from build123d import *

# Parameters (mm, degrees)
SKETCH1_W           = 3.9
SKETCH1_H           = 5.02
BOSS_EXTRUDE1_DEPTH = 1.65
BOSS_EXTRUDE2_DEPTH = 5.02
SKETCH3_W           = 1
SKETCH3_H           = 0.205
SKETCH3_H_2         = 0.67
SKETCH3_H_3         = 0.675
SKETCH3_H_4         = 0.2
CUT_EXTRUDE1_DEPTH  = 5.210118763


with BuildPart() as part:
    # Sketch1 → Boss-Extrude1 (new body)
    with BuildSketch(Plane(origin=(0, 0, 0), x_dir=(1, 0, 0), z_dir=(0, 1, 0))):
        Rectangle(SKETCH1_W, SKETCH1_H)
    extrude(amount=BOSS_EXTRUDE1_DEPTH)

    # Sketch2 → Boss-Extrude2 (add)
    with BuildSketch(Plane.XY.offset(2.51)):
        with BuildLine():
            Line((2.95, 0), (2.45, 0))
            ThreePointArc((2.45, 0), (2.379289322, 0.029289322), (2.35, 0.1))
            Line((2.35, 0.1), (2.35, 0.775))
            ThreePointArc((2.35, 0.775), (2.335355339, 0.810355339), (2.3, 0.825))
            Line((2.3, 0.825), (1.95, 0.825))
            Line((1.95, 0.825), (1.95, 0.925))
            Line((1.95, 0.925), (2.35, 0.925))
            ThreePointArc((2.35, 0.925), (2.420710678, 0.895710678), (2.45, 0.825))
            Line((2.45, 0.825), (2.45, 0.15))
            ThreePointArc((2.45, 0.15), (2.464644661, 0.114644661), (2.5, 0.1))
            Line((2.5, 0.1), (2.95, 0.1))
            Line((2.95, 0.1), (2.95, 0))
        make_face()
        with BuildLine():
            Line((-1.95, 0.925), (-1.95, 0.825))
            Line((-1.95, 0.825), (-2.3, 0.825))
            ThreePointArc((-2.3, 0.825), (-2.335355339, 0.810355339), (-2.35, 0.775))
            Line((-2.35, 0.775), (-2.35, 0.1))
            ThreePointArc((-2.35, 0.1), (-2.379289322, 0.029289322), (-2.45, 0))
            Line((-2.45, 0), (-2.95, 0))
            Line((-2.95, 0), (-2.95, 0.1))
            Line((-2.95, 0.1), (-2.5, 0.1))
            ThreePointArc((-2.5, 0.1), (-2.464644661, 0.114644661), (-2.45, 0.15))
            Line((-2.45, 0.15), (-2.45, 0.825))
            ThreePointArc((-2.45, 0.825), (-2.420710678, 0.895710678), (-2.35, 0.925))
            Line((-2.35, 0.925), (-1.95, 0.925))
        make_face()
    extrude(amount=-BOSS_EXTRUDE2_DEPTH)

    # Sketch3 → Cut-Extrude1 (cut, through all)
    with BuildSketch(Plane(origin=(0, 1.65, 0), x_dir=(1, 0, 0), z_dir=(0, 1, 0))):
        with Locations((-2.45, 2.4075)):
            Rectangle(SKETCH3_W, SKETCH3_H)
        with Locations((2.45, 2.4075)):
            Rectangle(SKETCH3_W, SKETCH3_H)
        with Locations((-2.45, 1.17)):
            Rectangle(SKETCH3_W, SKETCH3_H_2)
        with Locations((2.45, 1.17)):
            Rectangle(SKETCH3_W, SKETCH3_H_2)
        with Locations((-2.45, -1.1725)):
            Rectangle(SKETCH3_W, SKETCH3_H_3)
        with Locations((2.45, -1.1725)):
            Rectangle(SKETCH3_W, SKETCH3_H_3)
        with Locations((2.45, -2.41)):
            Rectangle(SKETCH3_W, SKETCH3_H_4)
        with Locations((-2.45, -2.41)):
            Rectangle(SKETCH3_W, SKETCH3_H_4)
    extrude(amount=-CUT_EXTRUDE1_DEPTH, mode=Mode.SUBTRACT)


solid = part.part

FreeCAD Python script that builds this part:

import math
import FreeCAD as App
import Part
import Sketcher
from FreeCAD import Vector

doc = App.newDocument("Part")
body = doc.addObject("PartDesign::Body", "Body")

sketch1 = body.newObject("Sketcher::SketchObject", "Sketch")
sketch1.AttachmentSupport = (doc.getObject("XZ_Plane"), [""])
sketch1.MapMode = "FlatFace"
sketch1.addGeometry(Part.LineSegment(Vector(-1.9, -2.5, 0), Vector(-1.9, 2.5, 0)), False)
sketch1.addGeometry(Part.LineSegment(Vector(-1.9, 2.5, 0), Vector(1.9, 2.5, 0)), False)
sketch1.addGeometry(Part.LineSegment(Vector(1.9, 2.5, 0), Vector(1.9, -2.5, 0)), False)
sketch1.addGeometry(Part.LineSegment(Vector(1.9, -2.5, 0), Vector(-1.9, -2.5, 0)), False)
sketch1.addConstraint(Sketcher.Constraint("Coincident", 0, 2, 1, 1))
sketch1.addConstraint(Sketcher.Constraint("Coincident", 1, 2, 2, 1))
sketch1.addConstraint(Sketcher.Constraint("Coincident", 2, 2, 3, 1))
sketch1.addConstraint(Sketcher.Constraint("Coincident", 3, 2, 0, 1))
sketch1.addConstraint(Sketcher.Constraint("Vertical", 0))
sketch1.addConstraint(Sketcher.Constraint("Horizontal", 1))
sketch1.addConstraint(Sketcher.Constraint("Vertical", 2))
sketch1.addConstraint(Sketcher.Constraint("Horizontal", 3))
sketch1.addConstraint(Sketcher.Constraint("Symmetric", 0, 2, 2, 2, -1, 1))
sketch1.addConstraint(Sketcher.Constraint("DistanceX", 1, 1, 1, 2, 3.9))
sketch1.addConstraint(Sketcher.Constraint("DistanceY", 0, 1, 0, 2, 5.02))
pad1 = body.newObject("PartDesign::Pad", "Pad")
pad1.Profile = sketch1
pad1.Length = 1.65
pad1.Reversed = True

sketch2 = body.newObject("Sketcher::SketchObject", "Sketch001")
sketch2.AttachmentSupport = (doc.getObject("XY_Plane"), [""])
sketch2.MapMode = "FlatFace"
sketch2.AttachmentOffset = App.Placement(Vector(0, 0, 2.51), App.Rotation())
sketch2.addGeometry(Part.LineSegment(Vector(2.45, 0, 0), Vector(2.95, 0, 0)), False)
sketch2.addGeometry(Part.LineSegment(Vector(2.95, 0, 0), Vector(2.95, 0.1, 0)), False)
sketch2.addGeometry(Part.LineSegment(Vector(2.95, 0.1, 0), Vector(2.5, 0.1, 0)), False)
sketch2.addGeometry(Part.ArcOfCircle(Part.Circle(Vector(2.5, 0.15, 0), Vector(0, 0, 1), 0.05), math.radians(180), math.radians(270)), False)
sketch2.addGeometry(Part.LineSegment(Vector(2.45, 0.15, 0), Vector(2.45, 0.82, 0)), False)
sketch2.addGeometry(Part.ArcOfCircle(Part.Circle(Vector(2.35, 0.82, 0), Vector(0, 0, 1), 0.1), math.radians(0), math.radians(90)), False)
sketch2.addGeometry(Part.LineSegment(Vector(2.35, 0.93, 0), Vector(1.95, 0.93, 0)), False)
sketch2.addGeometry(Part.LineSegment(Vector(1.95, 0.93, 0), Vector(1.95, 0.82, 0)), False)
sketch2.addGeometry(Part.LineSegment(Vector(1.95, 0.82, 0), Vector(2.3, 0.82, 0)), False)
sketch2.addGeometry(Part.ArcOfCircle(Part.Circle(Vector(2.3, 0.78, 0), Vector(0, 0, 1), 0.05), math.radians(0), math.radians(90)), False)
sketch2.addGeometry(Part.LineSegment(Vector(2.35, 0.78, 0), Vector(2.35, 0.1, 0)), False)
sketch2.addGeometry(Part.ArcOfCircle(Part.Circle(Vector(2.45, 0.1, 0), Vector(0, 0, 1), 0.1), math.radians(180), math.radians(270)), False)
sketch2.addGeometry(Part.LineSegment(Vector(-1.95, 0.82, 0), Vector(-1.95, 0.93, 0)), False)
sketch2.addGeometry(Part.LineSegment(Vector(-1.95, 0.93, 0), Vector(-2.35, 0.93, 0)), False)
sketch2.addGeometry(Part.ArcOfCircle(Part.Circle(Vector(-2.35, 0.82, 0), Vector(0, 0, 1), 0.1), math.radians(90), math.radians(180)), False)
sketch2.addGeometry(Part.LineSegment(Vector(-2.45, 0.82, 0), Vector(-2.45, 0.15, 0)), False)
sketch2.addGeometry(Part.ArcOfCircle(Part.Circle(Vector(-2.5, 0.15, 0), Vector(0, 0, 1), 0.05), math.radians(-90), math.radians(0)), False)
sketch2.addGeometry(Part.LineSegment(Vector(-2.5, 0.1, 0), Vector(-2.95, 0.1, 0)), False)
sketch2.addGeometry(Part.LineSegment(Vector(-2.95, 0.1, 0), Vector(-2.95, 0, 0)), False)
sketch2.addGeometry(Part.LineSegment(Vector(-2.95, 0, 0), Vector(-2.45, 0, 0)), False)
sketch2.addGeometry(Part.ArcOfCircle(Part.Circle(Vector(-2.45, 0.1, 0), Vector(0, 0, 1), 0.1), math.radians(-90), math.radians(0)), False)
sketch2.addGeometry(Part.LineSegment(Vector(-2.35, 0.1, 0), Vector(-2.35, 0.78, 0)), False)
sketch2.addGeometry(Part.ArcOfCircle(Part.Circle(Vector(-2.3, 0.78, 0), Vector(0, 0, 1), 0.05), math.radians(90), math.radians(180)), False)
sketch2.addGeometry(Part.LineSegment(Vector(-2.3, 0.82, 0), Vector(-1.95, 0.82, 0)), False)
sketch2.addConstraint(Sketcher.Constraint("Coincident", 0, 2, 1, 1))
sketch2.addConstraint(Sketcher.Constraint("Coincident", 1, 2, 2, 1))
sketch2.addConstraint(Sketcher.Constraint("Tangent", 2, 2, 3, 2))
sketch2.addConstraint(Sketcher.Constraint("Tangent", 3, 1, 4, 1))
sketch2.addConstraint(Sketcher.Constraint("Tangent", 4, 2, 5, 1))
sketch2.addConstraint(Sketcher.Constraint("Tangent", 5, 2, 6, 1))
sketch2.addConstraint(Sketcher.Constraint("Coincident", 6, 2, 7, 1))
sketch2.addConstraint(Sketcher.Constraint("Coincident", 7, 2, 8, 1))
sketch2.addConstraint(Sketcher.Constraint("Tangent", 8, 2, 9, 2))
sketch2.addConstraint(Sketcher.Constraint("Tangent", 9, 1, 10, 1))
sketch2.addConstraint(Sketcher.Constraint("Tangent", 10, 2, 11, 1))
sketch2.addConstraint(Sketcher.Constraint("Tangent", 11, 2, 0, 1))
sketch2.addConstraint(Sketcher.Constraint("Coincident", 12, 2, 13, 1))
sketch2.addConstraint(Sketcher.Constraint("Tangent", 13, 2, 14, 1))
sketch2.addConstraint(Sketcher.Constraint("Tangent", 14, 2, 15, 1))
sketch2.addConstraint(Sketcher.Constraint("Tangent", 15, 2, 16, 2))
sketch2.addConstraint(Sketcher.Constraint("Tangent", 16, 1, 17, 1))
sketch2.addConstraint(Sketcher.Constraint("Coincident", 17, 2, 18, 1))
sketch2.addConstraint(Sketcher.Constraint("Coincident", 18, 2, 19, 1))
sketch2.addConstraint(Sketcher.Constraint("Tangent", 19, 2, 20, 1))
sketch2.addConstraint(Sketcher.Constraint("Tangent", 20, 2, 21, 1))
sketch2.addConstraint(Sketcher.Constraint("Tangent", 21, 2, 22, 2))
sketch2.addConstraint(Sketcher.Constraint("Tangent", 22, 1, 23, 1))
sketch2.addConstraint(Sketcher.Constraint("Coincident", 23, 2, 12, 1))
sketch2.addConstraint(Sketcher.Constraint("Horizontal", 0))
sketch2.addConstraint(Sketcher.Constraint("Vertical", 1))
sketch2.addConstraint(Sketcher.Constraint("Horizontal", 2))
sketch2.addConstraint(Sketcher.Constraint("Vertical", 4))
sketch2.addConstraint(Sketcher.Constraint("Horizontal", 6))
sketch2.addConstraint(Sketcher.Constraint("Vertical", 7))
sketch2.addConstraint(Sketcher.Constraint("Horizontal", 8))
sketch2.addConstraint(Sketcher.Constraint("Vertical", 10))
sketch2.addConstraint(Sketcher.Constraint("Vertical", 12))
sketch2.addConstraint(Sketcher.Constraint("Horizontal", 13))
sketch2.addConstraint(Sketcher.Constraint("Vertical", 15))
sketch2.addConstraint(Sketcher.Constraint("Horizontal", 17))
sketch2.addConstraint(Sketcher.Constraint("Vertical", 18))
sketch2.addConstraint(Sketcher.Constraint("Horizontal", 19))
sketch2.addConstraint(Sketcher.Constraint("Vertical", 21))
sketch2.addConstraint(Sketcher.Constraint("Horizontal", 23))
sketch2.addConstraint(Sketcher.Constraint("Equal", 3, 9))
sketch2.addConstraint(Sketcher.Constraint("Equal", 5, 11))
sketch2.addConstraint(Sketcher.Constraint("Equal", 11, 14))
sketch2.addConstraint(Sketcher.Constraint("Equal", 9, 16))
sketch2.addConstraint(Sketcher.Constraint("Equal", 14, 20))
sketch2.addConstraint(Sketcher.Constraint("Equal", 16, 22))
sketch2.addConstraint(Sketcher.Constraint("Symmetric", 0, 2, 18, 2, -1, 1))
sketch2.addConstraint(Sketcher.Constraint("Symmetric", 5, 3, 14, 3, -2))
sketch2.addConstraint(Sketcher.Constraint("Symmetric", 11, 3, 20, 3, -2))
sketch2.addConstraint(Sketcher.Constraint("Symmetric", 7, 2, 23, 2, -2))
sketch2.addConstraint(Sketcher.Constraint("Horizontal", 3, 3, 16, 3))
sketch2.addConstraint(Sketcher.Constraint("Horizontal", 20, 3, 1, 2))
sketch2.addConstraint(Sketcher.Constraint("Horizontal", 4, 2, 7, 2))
sketch2.addConstraint(Sketcher.Constraint("Vertical", 11, 3, 3, 1))
sketch2.addConstraint(Sketcher.Constraint("Radius", 5, 0.1))
sketch2.addConstraint(Sketcher.Constraint("Radius", 3, 0.05))
sketch2.addConstraint(Sketcher.Constraint("DistanceX", 0, 1, 0, 2, 0.5))
sketch2.addConstraint(Sketcher.Constraint("DistanceX", 6, 2, 6, 1, 0.4))
sketch2.addConstraint(Sketcher.Constraint("DistanceX", 16, 3, 3, 3, 5.0))
sketch2.addConstraint(Sketcher.Constraint("DistanceY", 4, 1, 4, 2, 0.675))
pad2 = body.newObject("PartDesign::Pad", "Pad001")
pad2.Profile = sketch2
pad2.Length = 5.02
pad2.Reversed = True

sketch3 = body.newObject("Sketcher::SketchObject", "Sketch002")
sketch3.AttachmentSupport = (doc.getObject("XZ_Plane"), [""])
sketch3.MapMode = "FlatFace"
sketch3.AttachmentOffset = App.Placement(Vector(0, 0, -1.65), App.Rotation())
sketch3.addGeometry(Part.LineSegment(Vector(-2.95, -2.51, 0), Vector(-2.95, -2.31, 0)), False)
sketch3.addGeometry(Part.LineSegment(Vector(-2.95, -2.31, 0), Vector(-1.95, -2.31, 0)), False)
sketch3.addGeometry(Part.LineSegment(Vector(-1.95, -2.31, 0), Vector(-1.95, -2.51, 0)), False)
sketch3.addGeometry(Part.LineSegment(Vector(-1.95, -2.51, 0), Vector(-2.95, -2.51, 0)), False)
sketch3.addGeometry(Part.LineSegment(Vector(1.95, -2.51, 0), Vector(1.95, -2.31, 0)), False)
sketch3.addGeometry(Part.LineSegment(Vector(1.95, -2.31, 0), Vector(2.95, -2.31, 0)), False)
sketch3.addGeometry(Part.LineSegment(Vector(2.95, -2.31, 0), Vector(2.95, -2.51, 0)), False)
sketch3.addGeometry(Part.LineSegment(Vector(2.95, -2.51, 0), Vector(1.95, -2.51, 0)), False)
sketch3.addGeometry(Part.LineSegment(Vector(-2.95, -1.5, 0), Vector(-2.95, -0.83, 0)), False)
sketch3.addGeometry(Part.LineSegment(Vector(-2.95, -0.83, 0), Vector(-1.95, -0.83, 0)), False)
sketch3.addGeometry(Part.LineSegment(Vector(-1.95, -0.83, 0), Vector(-1.95, -1.5, 0)), False)
sketch3.addGeometry(Part.LineSegment(Vector(-1.95, -1.5, 0), Vector(-2.95, -1.5, 0)), False)
sketch3.addGeometry(Part.LineSegment(Vector(1.95, -1.5, 0), Vector(1.95, -0.83, 0)), False)
sketch3.addGeometry(Part.LineSegment(Vector(1.95, -0.83, 0), Vector(2.95, -0.83, 0)), False)
sketch3.addGeometry(Part.LineSegment(Vector(2.95, -0.83, 0), Vector(2.95, -1.5, 0)), False)
sketch3.addGeometry(Part.LineSegment(Vector(2.95, -1.5, 0), Vector(1.95, -1.5, 0)), False)
sketch3.addGeometry(Part.LineSegment(Vector(-2.95, 0.83, 0), Vector(-2.95, 1.51, 0)), False)
sketch3.addGeometry(Part.LineSegment(Vector(-2.95, 1.51, 0), Vector(-1.95, 1.51, 0)), False)
sketch3.addGeometry(Part.LineSegment(Vector(-1.95, 1.51, 0), Vector(-1.95, 0.83, 0)), False)
sketch3.addGeometry(Part.LineSegment(Vector(-1.95, 0.83, 0), Vector(-2.95, 0.83, 0)), False)
sketch3.addGeometry(Part.LineSegment(Vector(1.95, 0.83, 0), Vector(1.95, 1.51, 0)), False)
sketch3.addGeometry(Part.LineSegment(Vector(1.95, 1.51, 0), Vector(2.95, 1.51, 0)), False)
sketch3.addGeometry(Part.LineSegment(Vector(2.95, 1.51, 0), Vector(2.95, 0.83, 0)), False)
sketch3.addGeometry(Part.LineSegment(Vector(2.95, 0.83, 0), Vector(1.95, 0.83, 0)), False)
sketch3.addGeometry(Part.LineSegment(Vector(1.95, 2.31, 0), Vector(1.95, 2.51, 0)), False)
sketch3.addGeometry(Part.LineSegment(Vector(1.95, 2.51, 0), Vector(2.95, 2.51, 0)), False)
sketch3.addGeometry(Part.LineSegment(Vector(2.95, 2.51, 0), Vector(2.95, 2.31, 0)), False)
sketch3.addGeometry(Part.LineSegment(Vector(2.95, 2.31, 0), Vector(1.95, 2.31, 0)), False)
sketch3.addGeometry(Part.LineSegment(Vector(-2.95, 2.31, 0), Vector(-2.95, 2.51, 0)), False)
sketch3.addGeometry(Part.LineSegment(Vector(-2.95, 2.51, 0), Vector(-1.95, 2.51, 0)), False)
sketch3.addGeometry(Part.LineSegment(Vector(-1.95, 2.51, 0), Vector(-1.95, 2.31, 0)), False)
sketch3.addGeometry(Part.LineSegment(Vector(-1.95, 2.31, 0), Vector(-2.95, 2.31, 0)), False)
sketch3.addConstraint(Sketcher.Constraint("Coincident", 0, 2, 1, 1))
sketch3.addConstraint(Sketcher.Constraint("Coincident", 1, 2, 2, 1))
sketch3.addConstraint(Sketcher.Constraint("Coincident", 2, 2, 3, 1))
sketch3.addConstraint(Sketcher.Constraint("Coincident", 3, 2, 0, 1))
sketch3.addConstraint(Sketcher.Constraint("Coincident", 4, 2, 5, 1))
sketch3.addConstraint(Sketcher.Constraint("Coincident", 5, 2, 6, 1))
sketch3.addConstraint(Sketcher.Constraint("Coincident", 6, 2, 7, 1))
sketch3.addConstraint(Sketcher.Constraint("Coincident", 7, 2, 4, 1))
sketch3.addConstraint(Sketcher.Constraint("Coincident", 8, 2, 9, 1))
sketch3.addConstraint(Sketcher.Constraint("Coincident", 9, 2, 10, 1))
sketch3.addConstraint(Sketcher.Constraint("Coincident", 10, 2, 11, 1))
sketch3.addConstraint(Sketcher.Constraint("Coincident", 11, 2, 8, 1))
sketch3.addConstraint(Sketcher.Constraint("Coincident", 12, 2, 13, 1))
sketch3.addConstraint(Sketcher.Constraint("Coincident", 13, 2, 14, 1))
sketch3.addConstraint(Sketcher.Constraint("Coincident", 14, 2, 15, 1))
sketch3.addConstraint(Sketcher.Constraint("Coincident", 15, 2, 12, 1))
sketch3.addConstraint(Sketcher.Constraint("Coincident", 16, 2, 17, 1))
sketch3.addConstraint(Sketcher.Constraint("Coincident", 17, 2, 18, 1))
sketch3.addConstraint(Sketcher.Constraint("Coincident", 18, 2, 19, 1))
sketch3.addConstraint(Sketcher.Constraint("Coincident", 19, 2, 16, 1))
sketch3.addConstraint(Sketcher.Constraint("Coincident", 20, 2, 21, 1))
sketch3.addConstraint(Sketcher.Constraint("Coincident", 21, 2, 22, 1))
sketch3.addConstraint(Sketcher.Constraint("Coincident", 22, 2, 23, 1))
sketch3.addConstraint(Sketcher.Constraint("Coincident", 23, 2, 20, 1))
sketch3.addConstraint(Sketcher.Constraint("Coincident", 24, 2, 25, 1))
sketch3.addConstraint(Sketcher.Constraint("Coincident", 25, 2, 26, 1))
sketch3.addConstraint(Sketcher.Constraint("Coincident", 26, 2, 27, 1))
sketch3.addConstraint(Sketcher.Constraint("Coincident", 27, 2, 24, 1))
sketch3.addConstraint(Sketcher.Constraint("Coincident", 28, 2, 29, 1))
sketch3.addConstraint(Sketcher.Constraint("Coincident", 29, 2, 30, 1))
sketch3.addConstraint(Sketcher.Constraint("Coincident", 30, 2, 31, 1))
sketch3.addConstraint(Sketcher.Constraint("Coincident", 31, 2, 28, 1))
sketch3.addConstraint(Sketcher.Constraint("Vertical", 0))
sketch3.addConstraint(Sketcher.Constraint("Horizontal", 1))
sketch3.addConstraint(Sketcher.Constraint("Vertical", 2))
sketch3.addConstraint(Sketcher.Constraint("Horizontal", 3))
sketch3.addConstraint(Sketcher.Constraint("Vertical", 4))
sketch3.addConstraint(Sketcher.Constraint("Horizontal", 5))
sketch3.addConstraint(Sketcher.Constraint("Vertical", 6))
sketch3.addConstraint(Sketcher.Constraint("Horizontal", 7))
sketch3.addConstraint(Sketcher.Constraint("Vertical", 8))
sketch3.addConstraint(Sketcher.Constraint("Horizontal", 9))
sketch3.addConstraint(Sketcher.Constraint("Vertical", 10))
sketch3.addConstraint(Sketcher.Constraint("Horizontal", 11))
sketch3.addConstraint(Sketcher.Constraint("Vertical", 12))
sketch3.addConstraint(Sketcher.Constraint("Horizontal", 13))
sketch3.addConstraint(Sketcher.Constraint("Vertical", 14))
sketch3.addConstraint(Sketcher.Constraint("Horizontal", 15))
sketch3.addConstraint(Sketcher.Constraint("Vertical", 16))
sketch3.addConstraint(Sketcher.Constraint("Horizontal", 17))
sketch3.addConstraint(Sketcher.Constraint("Vertical", 18))
sketch3.addConstraint(Sketcher.Constraint("Horizontal", 19))
sketch3.addConstraint(Sketcher.Constraint("Vertical", 20))
sketch3.addConstraint(Sketcher.Constraint("Horizontal", 21))
sketch3.addConstraint(Sketcher.Constraint("Vertical", 22))
sketch3.addConstraint(Sketcher.Constraint("Horizontal", 23))
sketch3.addConstraint(Sketcher.Constraint("Vertical", 24))
sketch3.addConstraint(Sketcher.Constraint("Horizontal", 25))
sketch3.addConstraint(Sketcher.Constraint("Vertical", 26))
sketch3.addConstraint(Sketcher.Constraint("Horizontal", 27))
sketch3.addConstraint(Sketcher.Constraint("Vertical", 28))
sketch3.addConstraint(Sketcher.Constraint("Horizontal", 29))
sketch3.addConstraint(Sketcher.Constraint("Vertical", 30))
sketch3.addConstraint(Sketcher.Constraint("Horizontal", 31))
sketch3.addConstraint(Sketcher.Constraint("Symmetric", 12, 2, 18, 2, -1, 1))
sketch3.addConstraint(Sketcher.Constraint("Symmetric", 8, 2, 22, 2, -1, 1))
sketch3.addConstraint(Sketcher.Constraint("Symmetric", 2, 2, 24, 2, -1, 1))
sketch3.addConstraint(Sketcher.Constraint("Symmetric", 6, 2, 28, 2, -1, 1))
sketch3.addConstraint(Sketcher.Constraint("Symmetric", 1, 2, 4, 2, -2))
sketch3.addConstraint(Sketcher.Constraint("Symmetric", 3, 2, 6, 2, -2))
sketch3.addConstraint(Sketcher.Constraint("Symmetric", 9, 2, 12, 2, -2))
sketch3.addConstraint(Sketcher.Constraint("Symmetric", 11, 2, 14, 2, -2))
sketch3.addConstraint(Sketcher.Constraint("Symmetric", 17, 2, 20, 2, -2))
sketch3.addConstraint(Sketcher.Constraint("Symmetric", 27, 2, 30, 2, -2))
sketch3.addConstraint(Sketcher.Constraint("Vertical", 3, 2, 8, 2))
sketch3.addConstraint(Sketcher.Constraint("Vertical", 2, 2, 9, 2))
sketch3.addConstraint(Sketcher.Constraint("Vertical", 11, 2, 16, 2))
sketch3.addConstraint(Sketcher.Constraint("Vertical", 22, 2, 25, 2))
sketch3.addConstraint(Sketcher.Constraint("DistanceX", 1, 1, 1, 2, 1.0))
sketch3.addConstraint(Sketcher.Constraint("DistanceY", 24, 1, 24, 2, 0.2))
sketch3.addConstraint(Sketcher.Constraint("DistanceY", 20, 2, 24, 2, 1.0))
sketch3.addConstraint(Sketcher.Constraint("DistanceY", 8, 1, 8, 2, 0.67))
sketch3.addConstraint(Sketcher.Constraint("DistanceX", 1, 2, 4, 2, 3.9))
sketch3.addConstraint(Sketcher.Constraint("DistanceY", 1, 2, 10, 2, 0.8))
sketch3.addConstraint(Sketcher.Constraint("DistanceY", 0, 1, 0, 2, 0.205))
sketch3.addConstraint(Sketcher.Constraint("DistanceY", 2, 2, -1, 1, 2.51))
pocket1 = body.newObject("PartDesign::Pocket", "Pocket")
pocket1.Profile = sketch3
pocket1.Type = "ThroughAll"
pocket1.Reversed = True

doc.recompute()
